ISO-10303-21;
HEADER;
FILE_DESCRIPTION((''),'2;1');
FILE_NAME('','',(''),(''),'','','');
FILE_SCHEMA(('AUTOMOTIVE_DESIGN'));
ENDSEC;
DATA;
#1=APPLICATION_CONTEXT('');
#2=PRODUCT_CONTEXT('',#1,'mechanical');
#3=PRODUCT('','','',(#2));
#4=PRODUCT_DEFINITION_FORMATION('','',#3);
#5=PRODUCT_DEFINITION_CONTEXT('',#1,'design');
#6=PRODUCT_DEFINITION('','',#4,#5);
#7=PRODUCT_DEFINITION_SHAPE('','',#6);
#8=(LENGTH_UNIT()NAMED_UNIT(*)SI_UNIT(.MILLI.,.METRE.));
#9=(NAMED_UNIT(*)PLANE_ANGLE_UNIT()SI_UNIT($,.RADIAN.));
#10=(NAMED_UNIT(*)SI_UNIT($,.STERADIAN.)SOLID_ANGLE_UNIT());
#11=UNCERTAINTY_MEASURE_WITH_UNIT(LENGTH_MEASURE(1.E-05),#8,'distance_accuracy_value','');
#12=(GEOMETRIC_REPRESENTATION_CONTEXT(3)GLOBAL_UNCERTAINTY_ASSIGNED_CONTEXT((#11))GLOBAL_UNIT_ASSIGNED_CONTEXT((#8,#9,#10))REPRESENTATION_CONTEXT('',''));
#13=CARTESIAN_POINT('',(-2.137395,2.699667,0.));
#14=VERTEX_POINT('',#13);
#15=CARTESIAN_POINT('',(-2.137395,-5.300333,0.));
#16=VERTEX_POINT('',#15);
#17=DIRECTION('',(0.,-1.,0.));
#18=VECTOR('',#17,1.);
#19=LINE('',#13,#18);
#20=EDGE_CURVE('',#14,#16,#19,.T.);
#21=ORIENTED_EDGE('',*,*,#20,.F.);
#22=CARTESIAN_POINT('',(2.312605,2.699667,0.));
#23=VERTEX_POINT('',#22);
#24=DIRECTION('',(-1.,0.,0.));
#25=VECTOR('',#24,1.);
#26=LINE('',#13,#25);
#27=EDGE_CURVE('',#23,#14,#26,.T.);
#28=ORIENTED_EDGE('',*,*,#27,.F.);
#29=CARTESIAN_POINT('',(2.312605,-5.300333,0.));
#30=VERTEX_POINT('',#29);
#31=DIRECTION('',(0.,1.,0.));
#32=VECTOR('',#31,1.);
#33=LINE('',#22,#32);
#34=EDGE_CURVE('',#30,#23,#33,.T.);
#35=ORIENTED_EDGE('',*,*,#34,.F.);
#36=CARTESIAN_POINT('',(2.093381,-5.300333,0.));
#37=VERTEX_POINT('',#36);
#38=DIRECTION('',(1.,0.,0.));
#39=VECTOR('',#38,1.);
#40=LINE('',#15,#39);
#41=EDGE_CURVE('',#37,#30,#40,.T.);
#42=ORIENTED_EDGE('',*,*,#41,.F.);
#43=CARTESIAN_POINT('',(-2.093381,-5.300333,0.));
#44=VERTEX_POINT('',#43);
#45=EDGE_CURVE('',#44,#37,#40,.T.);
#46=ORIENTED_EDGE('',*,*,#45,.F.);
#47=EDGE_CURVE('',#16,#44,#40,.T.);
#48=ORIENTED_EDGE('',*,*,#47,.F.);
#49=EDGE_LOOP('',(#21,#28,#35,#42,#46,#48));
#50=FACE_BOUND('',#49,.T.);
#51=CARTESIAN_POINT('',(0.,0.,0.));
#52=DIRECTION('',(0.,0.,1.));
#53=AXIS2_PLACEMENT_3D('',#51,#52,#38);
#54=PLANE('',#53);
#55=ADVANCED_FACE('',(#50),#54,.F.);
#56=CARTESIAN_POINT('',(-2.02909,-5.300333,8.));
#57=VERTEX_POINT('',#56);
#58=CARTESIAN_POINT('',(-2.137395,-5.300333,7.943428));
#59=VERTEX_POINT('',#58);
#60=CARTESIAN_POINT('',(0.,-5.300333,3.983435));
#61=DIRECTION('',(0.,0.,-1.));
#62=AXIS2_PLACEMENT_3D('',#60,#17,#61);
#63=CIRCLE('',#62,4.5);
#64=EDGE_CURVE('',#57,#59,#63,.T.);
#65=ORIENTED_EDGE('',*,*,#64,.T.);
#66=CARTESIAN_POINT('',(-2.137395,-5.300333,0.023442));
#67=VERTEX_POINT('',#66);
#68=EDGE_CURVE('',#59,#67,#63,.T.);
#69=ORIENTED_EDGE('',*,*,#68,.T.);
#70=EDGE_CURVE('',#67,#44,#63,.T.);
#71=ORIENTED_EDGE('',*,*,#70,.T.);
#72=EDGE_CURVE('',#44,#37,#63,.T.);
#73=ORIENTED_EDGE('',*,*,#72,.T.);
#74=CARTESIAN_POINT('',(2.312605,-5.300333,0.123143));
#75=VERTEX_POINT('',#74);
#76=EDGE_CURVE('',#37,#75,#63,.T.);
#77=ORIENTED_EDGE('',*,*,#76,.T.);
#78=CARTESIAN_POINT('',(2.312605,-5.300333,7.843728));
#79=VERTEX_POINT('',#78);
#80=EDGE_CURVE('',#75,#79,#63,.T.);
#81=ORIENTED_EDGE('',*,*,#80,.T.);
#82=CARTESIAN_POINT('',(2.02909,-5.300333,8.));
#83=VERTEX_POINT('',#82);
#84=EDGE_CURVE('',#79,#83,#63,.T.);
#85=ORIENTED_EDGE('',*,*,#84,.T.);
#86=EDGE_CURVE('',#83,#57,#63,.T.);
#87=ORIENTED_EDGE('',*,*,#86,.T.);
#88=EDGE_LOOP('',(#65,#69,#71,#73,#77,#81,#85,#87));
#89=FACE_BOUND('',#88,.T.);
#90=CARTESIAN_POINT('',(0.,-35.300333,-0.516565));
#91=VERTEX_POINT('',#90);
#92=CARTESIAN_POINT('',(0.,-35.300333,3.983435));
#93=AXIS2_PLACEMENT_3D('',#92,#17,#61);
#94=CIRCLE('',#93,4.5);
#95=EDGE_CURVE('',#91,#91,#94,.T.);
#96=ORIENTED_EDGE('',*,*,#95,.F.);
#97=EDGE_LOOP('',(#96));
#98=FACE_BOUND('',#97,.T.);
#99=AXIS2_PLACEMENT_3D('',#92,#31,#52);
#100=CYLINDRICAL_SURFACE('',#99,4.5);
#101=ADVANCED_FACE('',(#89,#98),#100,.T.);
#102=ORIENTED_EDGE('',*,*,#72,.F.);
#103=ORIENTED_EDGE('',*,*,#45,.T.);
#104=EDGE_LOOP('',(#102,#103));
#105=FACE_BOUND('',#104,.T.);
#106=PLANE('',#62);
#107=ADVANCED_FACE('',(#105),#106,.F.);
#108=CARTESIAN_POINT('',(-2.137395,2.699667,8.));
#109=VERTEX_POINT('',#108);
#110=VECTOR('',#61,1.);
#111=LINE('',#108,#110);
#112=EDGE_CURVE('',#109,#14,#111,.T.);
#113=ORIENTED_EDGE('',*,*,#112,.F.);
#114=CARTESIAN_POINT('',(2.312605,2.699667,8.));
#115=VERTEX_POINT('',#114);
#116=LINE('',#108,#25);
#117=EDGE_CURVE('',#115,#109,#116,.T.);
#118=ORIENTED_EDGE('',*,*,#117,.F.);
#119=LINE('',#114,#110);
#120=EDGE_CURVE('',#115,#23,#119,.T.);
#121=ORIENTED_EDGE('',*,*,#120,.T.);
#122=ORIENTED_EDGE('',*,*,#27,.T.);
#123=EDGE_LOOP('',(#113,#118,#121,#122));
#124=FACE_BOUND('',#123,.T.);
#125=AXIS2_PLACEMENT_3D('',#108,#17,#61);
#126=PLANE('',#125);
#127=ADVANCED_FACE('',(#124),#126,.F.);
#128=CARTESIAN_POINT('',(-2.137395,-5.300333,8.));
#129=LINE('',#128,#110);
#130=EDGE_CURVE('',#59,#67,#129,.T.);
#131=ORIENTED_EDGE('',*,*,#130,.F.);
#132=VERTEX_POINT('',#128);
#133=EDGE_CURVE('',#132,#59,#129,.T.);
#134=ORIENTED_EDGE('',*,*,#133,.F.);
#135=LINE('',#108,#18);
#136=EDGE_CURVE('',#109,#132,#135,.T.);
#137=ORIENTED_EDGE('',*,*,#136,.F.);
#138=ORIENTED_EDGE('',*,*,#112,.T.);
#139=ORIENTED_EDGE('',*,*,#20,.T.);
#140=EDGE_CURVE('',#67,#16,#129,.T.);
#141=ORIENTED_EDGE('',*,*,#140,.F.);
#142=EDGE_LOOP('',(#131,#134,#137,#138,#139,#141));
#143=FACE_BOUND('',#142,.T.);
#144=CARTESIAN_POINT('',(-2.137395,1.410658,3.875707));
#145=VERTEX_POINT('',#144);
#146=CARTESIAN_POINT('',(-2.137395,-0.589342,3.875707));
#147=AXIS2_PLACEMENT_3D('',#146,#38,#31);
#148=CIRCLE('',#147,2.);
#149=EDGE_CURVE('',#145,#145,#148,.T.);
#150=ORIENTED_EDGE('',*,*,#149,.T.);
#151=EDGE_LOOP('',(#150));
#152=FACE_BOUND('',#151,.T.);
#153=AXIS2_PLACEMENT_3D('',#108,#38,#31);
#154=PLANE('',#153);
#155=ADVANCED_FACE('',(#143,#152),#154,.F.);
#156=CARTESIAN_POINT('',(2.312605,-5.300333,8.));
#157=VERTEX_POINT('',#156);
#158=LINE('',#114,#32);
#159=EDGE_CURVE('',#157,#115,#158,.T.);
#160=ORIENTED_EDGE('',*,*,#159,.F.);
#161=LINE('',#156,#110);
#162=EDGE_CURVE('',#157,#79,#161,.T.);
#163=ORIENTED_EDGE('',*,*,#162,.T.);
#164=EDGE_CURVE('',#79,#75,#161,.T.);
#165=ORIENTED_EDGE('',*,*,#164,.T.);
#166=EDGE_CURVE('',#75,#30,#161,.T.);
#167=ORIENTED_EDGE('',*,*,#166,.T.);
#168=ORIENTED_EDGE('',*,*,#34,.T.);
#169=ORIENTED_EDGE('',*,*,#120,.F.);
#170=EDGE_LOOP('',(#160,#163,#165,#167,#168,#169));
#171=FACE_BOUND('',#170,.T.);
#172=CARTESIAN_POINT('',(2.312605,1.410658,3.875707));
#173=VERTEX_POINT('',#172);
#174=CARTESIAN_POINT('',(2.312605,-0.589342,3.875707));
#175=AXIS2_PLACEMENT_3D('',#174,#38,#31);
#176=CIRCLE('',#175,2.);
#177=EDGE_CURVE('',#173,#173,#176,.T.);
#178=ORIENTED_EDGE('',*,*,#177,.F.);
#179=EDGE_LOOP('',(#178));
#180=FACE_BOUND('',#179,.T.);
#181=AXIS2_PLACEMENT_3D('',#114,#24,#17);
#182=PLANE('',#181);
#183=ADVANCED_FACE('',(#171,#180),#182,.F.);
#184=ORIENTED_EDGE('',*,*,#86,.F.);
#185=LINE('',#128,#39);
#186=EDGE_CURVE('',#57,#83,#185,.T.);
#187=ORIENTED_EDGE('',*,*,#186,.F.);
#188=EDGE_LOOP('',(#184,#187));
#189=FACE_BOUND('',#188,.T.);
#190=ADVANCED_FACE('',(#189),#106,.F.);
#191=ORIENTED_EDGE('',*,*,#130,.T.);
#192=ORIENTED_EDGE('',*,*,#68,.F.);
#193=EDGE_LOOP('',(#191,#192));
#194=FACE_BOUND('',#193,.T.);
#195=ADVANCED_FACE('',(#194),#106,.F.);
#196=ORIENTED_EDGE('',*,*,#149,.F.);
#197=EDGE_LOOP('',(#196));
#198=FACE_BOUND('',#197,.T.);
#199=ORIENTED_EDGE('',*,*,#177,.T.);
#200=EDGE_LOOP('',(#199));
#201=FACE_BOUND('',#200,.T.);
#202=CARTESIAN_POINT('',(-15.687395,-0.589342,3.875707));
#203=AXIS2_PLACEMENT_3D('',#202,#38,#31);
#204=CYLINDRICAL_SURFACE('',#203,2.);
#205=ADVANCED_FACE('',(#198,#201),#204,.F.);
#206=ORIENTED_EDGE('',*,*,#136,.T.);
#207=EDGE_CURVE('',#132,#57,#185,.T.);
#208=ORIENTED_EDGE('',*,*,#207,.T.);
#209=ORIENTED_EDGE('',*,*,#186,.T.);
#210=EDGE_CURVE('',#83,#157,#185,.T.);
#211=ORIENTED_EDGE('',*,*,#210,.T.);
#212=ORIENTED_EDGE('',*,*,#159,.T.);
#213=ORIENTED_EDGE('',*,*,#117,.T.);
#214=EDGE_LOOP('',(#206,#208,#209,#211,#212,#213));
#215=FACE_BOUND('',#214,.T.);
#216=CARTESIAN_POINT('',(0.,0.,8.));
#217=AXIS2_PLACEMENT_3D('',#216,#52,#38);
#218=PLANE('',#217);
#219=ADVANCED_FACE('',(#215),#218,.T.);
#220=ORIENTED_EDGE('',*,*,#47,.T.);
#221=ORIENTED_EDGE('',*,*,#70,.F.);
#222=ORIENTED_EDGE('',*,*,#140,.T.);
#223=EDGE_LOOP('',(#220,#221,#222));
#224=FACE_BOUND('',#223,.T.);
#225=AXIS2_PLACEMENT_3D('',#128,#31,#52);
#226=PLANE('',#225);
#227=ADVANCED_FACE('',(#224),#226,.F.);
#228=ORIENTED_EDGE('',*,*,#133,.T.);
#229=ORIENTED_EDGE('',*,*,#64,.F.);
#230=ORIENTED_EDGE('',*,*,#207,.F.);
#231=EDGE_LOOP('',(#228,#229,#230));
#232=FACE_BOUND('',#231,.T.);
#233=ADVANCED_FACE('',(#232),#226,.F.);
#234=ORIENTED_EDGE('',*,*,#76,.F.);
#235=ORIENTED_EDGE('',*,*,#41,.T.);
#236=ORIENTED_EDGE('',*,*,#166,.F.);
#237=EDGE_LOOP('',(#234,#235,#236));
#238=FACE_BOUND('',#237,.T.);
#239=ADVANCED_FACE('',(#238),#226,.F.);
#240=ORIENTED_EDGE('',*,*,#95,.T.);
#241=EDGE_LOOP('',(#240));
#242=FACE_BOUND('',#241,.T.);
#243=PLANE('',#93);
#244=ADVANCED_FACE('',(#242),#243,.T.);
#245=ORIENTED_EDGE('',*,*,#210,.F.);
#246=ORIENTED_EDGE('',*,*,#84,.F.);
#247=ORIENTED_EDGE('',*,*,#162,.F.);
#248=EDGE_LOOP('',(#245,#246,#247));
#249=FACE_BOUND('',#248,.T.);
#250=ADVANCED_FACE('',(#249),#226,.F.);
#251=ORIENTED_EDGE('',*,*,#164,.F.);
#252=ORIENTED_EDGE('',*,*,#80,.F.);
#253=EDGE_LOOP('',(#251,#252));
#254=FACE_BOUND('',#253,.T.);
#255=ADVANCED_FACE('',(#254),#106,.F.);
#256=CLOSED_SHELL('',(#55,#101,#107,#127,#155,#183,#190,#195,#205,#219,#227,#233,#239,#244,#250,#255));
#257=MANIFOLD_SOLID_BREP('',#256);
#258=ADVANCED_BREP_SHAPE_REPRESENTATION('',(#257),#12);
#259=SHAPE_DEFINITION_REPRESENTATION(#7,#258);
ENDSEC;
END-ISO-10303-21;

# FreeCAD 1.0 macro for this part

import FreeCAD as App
import Part
import Sketcher
from FreeCAD import Vector
Q = App.Units.Quantity

doc = App.newDocument("Part")
body = doc.addObject("PartDesign::Body", "Body")

# Sketch on XY plane
sketch1 = doc.addObject("Sketcher::SketchObject", "Sketch")
body.addObject(sketch1)
sketch1.AttachmentSupport = (doc.XY_Plane, [""])
sketch1.MapMode = "FlatFace"
sketch1.addGeometry([
    Part.LineSegment(Vector(-2.1, 2.7, 0), Vector(-2.1, -5.3, 0)),
    Part.LineSegment(Vector(-2.1, -5.3, 0), Vector(2.3, -5.3, 0)),
    Part.LineSegment(Vector(2.3, -5.3, 0), Vector(2.3, 2.7, 0)),
    Part.LineSegment(Vector(2.3, 2.7, 0), Vector(-2.1, 2.7, 0)),
], False)
sketch1.addConstraint([
    Sketcher.Constraint("Coincident", 0, 2, 1, 1),
    Sketcher.Constraint("Coincident", 1, 2, 2, 1),
    Sketcher.Constraint("Coincident", 2, 2, 3, 1),
    Sketcher.Constraint("Coincident", 3, 2, 0, 1),
    Sketcher.Constraint("Vertical", 0),
    Sketcher.Constraint("Horizontal", 1),
    Sketcher.Constraint("Vertical", 2),
    Sketcher.Constraint("Horizontal", 3),
    Sketcher.Constraint("DistanceY", 0, 2, 0, 1, Q("8 mm")),
    Sketcher.Constraint("DistanceX", 1, 1, 1, 2, Q("4.45 mm")),
    Sketcher.Constraint("DistanceX", 0, 2, -1, 1, Q("2.137395 mm")),
    Sketcher.Constraint("DistanceY", 0, 2, -1, 1, Q("5.300333 mm")),
])
pad1 = doc.addObject("PartDesign::Pad", "Pad")
body.addObject(pad1)
pad1.Profile = sketch1
pad1.Length = 8

# Sketch on XZ plane
sketch2 = doc.addObject("Sketcher::SketchObject", "Sketch001")
body.addObject(sketch2)
sketch2.AttachmentSupport = (doc.XZ_Plane, [""])
sketch2.MapMode = "FlatFace"
sketch2.AttachmentOffset = App.Placement(Vector(0, 0, 5.300333), App.Rotation())
sketch2.addGeometry(Part.Circle(Vector(0, 4, 0), Vector(0, 0, 1), 4.5), False)
sketch2.addConstraint([
    Sketcher.Constraint("PointOnObject", 0, 3, -2),
    Sketcher.Constraint("Diameter", 0, Q("9 mm")),
    Sketcher.Constraint("DistanceY", -1, 1, 0, 3, Q("3.983435 mm")),
])
pad2 = doc.addObject("PartDesign::Pad", "Pad001")
body.addObject(pad2)
pad2.Profile = sketch2
pad2.Length = 30

# Sketch on YZ plane
sketch3 = doc.addObject("Sketcher::SketchObject", "Sketch002")
body.addObject(sketch3)
sketch3.AttachmentSupport = (doc.YZ_Plane, [""])
sketch3.MapMode = "FlatFace"
sketch3.AttachmentOffset = App.Placement(Vector(0, 0, 2.312605), App.Rotation())
sketch3.addGeometry(Part.Circle(Vector(-0.6, 3.9, 0), Vector(0, 0, 1), 2), False)
sketch3.addConstraint([
    Sketcher.Constraint("Diameter", 0, Q("4 mm")),
    Sketcher.Constraint("DistanceX", 0, 3, -1, 1, Q("0.589342 mm")),
    Sketcher.Constraint("DistanceY", -1, 1, 0, 3, Q("3.875707 mm")),
])
pocket1 = doc.addObject("PartDesign::Pocket", "Pocket")
body.addObject(pocket1)
pocket1.Profile = sketch3
pocket1.Length = 18

doc.recompute()
